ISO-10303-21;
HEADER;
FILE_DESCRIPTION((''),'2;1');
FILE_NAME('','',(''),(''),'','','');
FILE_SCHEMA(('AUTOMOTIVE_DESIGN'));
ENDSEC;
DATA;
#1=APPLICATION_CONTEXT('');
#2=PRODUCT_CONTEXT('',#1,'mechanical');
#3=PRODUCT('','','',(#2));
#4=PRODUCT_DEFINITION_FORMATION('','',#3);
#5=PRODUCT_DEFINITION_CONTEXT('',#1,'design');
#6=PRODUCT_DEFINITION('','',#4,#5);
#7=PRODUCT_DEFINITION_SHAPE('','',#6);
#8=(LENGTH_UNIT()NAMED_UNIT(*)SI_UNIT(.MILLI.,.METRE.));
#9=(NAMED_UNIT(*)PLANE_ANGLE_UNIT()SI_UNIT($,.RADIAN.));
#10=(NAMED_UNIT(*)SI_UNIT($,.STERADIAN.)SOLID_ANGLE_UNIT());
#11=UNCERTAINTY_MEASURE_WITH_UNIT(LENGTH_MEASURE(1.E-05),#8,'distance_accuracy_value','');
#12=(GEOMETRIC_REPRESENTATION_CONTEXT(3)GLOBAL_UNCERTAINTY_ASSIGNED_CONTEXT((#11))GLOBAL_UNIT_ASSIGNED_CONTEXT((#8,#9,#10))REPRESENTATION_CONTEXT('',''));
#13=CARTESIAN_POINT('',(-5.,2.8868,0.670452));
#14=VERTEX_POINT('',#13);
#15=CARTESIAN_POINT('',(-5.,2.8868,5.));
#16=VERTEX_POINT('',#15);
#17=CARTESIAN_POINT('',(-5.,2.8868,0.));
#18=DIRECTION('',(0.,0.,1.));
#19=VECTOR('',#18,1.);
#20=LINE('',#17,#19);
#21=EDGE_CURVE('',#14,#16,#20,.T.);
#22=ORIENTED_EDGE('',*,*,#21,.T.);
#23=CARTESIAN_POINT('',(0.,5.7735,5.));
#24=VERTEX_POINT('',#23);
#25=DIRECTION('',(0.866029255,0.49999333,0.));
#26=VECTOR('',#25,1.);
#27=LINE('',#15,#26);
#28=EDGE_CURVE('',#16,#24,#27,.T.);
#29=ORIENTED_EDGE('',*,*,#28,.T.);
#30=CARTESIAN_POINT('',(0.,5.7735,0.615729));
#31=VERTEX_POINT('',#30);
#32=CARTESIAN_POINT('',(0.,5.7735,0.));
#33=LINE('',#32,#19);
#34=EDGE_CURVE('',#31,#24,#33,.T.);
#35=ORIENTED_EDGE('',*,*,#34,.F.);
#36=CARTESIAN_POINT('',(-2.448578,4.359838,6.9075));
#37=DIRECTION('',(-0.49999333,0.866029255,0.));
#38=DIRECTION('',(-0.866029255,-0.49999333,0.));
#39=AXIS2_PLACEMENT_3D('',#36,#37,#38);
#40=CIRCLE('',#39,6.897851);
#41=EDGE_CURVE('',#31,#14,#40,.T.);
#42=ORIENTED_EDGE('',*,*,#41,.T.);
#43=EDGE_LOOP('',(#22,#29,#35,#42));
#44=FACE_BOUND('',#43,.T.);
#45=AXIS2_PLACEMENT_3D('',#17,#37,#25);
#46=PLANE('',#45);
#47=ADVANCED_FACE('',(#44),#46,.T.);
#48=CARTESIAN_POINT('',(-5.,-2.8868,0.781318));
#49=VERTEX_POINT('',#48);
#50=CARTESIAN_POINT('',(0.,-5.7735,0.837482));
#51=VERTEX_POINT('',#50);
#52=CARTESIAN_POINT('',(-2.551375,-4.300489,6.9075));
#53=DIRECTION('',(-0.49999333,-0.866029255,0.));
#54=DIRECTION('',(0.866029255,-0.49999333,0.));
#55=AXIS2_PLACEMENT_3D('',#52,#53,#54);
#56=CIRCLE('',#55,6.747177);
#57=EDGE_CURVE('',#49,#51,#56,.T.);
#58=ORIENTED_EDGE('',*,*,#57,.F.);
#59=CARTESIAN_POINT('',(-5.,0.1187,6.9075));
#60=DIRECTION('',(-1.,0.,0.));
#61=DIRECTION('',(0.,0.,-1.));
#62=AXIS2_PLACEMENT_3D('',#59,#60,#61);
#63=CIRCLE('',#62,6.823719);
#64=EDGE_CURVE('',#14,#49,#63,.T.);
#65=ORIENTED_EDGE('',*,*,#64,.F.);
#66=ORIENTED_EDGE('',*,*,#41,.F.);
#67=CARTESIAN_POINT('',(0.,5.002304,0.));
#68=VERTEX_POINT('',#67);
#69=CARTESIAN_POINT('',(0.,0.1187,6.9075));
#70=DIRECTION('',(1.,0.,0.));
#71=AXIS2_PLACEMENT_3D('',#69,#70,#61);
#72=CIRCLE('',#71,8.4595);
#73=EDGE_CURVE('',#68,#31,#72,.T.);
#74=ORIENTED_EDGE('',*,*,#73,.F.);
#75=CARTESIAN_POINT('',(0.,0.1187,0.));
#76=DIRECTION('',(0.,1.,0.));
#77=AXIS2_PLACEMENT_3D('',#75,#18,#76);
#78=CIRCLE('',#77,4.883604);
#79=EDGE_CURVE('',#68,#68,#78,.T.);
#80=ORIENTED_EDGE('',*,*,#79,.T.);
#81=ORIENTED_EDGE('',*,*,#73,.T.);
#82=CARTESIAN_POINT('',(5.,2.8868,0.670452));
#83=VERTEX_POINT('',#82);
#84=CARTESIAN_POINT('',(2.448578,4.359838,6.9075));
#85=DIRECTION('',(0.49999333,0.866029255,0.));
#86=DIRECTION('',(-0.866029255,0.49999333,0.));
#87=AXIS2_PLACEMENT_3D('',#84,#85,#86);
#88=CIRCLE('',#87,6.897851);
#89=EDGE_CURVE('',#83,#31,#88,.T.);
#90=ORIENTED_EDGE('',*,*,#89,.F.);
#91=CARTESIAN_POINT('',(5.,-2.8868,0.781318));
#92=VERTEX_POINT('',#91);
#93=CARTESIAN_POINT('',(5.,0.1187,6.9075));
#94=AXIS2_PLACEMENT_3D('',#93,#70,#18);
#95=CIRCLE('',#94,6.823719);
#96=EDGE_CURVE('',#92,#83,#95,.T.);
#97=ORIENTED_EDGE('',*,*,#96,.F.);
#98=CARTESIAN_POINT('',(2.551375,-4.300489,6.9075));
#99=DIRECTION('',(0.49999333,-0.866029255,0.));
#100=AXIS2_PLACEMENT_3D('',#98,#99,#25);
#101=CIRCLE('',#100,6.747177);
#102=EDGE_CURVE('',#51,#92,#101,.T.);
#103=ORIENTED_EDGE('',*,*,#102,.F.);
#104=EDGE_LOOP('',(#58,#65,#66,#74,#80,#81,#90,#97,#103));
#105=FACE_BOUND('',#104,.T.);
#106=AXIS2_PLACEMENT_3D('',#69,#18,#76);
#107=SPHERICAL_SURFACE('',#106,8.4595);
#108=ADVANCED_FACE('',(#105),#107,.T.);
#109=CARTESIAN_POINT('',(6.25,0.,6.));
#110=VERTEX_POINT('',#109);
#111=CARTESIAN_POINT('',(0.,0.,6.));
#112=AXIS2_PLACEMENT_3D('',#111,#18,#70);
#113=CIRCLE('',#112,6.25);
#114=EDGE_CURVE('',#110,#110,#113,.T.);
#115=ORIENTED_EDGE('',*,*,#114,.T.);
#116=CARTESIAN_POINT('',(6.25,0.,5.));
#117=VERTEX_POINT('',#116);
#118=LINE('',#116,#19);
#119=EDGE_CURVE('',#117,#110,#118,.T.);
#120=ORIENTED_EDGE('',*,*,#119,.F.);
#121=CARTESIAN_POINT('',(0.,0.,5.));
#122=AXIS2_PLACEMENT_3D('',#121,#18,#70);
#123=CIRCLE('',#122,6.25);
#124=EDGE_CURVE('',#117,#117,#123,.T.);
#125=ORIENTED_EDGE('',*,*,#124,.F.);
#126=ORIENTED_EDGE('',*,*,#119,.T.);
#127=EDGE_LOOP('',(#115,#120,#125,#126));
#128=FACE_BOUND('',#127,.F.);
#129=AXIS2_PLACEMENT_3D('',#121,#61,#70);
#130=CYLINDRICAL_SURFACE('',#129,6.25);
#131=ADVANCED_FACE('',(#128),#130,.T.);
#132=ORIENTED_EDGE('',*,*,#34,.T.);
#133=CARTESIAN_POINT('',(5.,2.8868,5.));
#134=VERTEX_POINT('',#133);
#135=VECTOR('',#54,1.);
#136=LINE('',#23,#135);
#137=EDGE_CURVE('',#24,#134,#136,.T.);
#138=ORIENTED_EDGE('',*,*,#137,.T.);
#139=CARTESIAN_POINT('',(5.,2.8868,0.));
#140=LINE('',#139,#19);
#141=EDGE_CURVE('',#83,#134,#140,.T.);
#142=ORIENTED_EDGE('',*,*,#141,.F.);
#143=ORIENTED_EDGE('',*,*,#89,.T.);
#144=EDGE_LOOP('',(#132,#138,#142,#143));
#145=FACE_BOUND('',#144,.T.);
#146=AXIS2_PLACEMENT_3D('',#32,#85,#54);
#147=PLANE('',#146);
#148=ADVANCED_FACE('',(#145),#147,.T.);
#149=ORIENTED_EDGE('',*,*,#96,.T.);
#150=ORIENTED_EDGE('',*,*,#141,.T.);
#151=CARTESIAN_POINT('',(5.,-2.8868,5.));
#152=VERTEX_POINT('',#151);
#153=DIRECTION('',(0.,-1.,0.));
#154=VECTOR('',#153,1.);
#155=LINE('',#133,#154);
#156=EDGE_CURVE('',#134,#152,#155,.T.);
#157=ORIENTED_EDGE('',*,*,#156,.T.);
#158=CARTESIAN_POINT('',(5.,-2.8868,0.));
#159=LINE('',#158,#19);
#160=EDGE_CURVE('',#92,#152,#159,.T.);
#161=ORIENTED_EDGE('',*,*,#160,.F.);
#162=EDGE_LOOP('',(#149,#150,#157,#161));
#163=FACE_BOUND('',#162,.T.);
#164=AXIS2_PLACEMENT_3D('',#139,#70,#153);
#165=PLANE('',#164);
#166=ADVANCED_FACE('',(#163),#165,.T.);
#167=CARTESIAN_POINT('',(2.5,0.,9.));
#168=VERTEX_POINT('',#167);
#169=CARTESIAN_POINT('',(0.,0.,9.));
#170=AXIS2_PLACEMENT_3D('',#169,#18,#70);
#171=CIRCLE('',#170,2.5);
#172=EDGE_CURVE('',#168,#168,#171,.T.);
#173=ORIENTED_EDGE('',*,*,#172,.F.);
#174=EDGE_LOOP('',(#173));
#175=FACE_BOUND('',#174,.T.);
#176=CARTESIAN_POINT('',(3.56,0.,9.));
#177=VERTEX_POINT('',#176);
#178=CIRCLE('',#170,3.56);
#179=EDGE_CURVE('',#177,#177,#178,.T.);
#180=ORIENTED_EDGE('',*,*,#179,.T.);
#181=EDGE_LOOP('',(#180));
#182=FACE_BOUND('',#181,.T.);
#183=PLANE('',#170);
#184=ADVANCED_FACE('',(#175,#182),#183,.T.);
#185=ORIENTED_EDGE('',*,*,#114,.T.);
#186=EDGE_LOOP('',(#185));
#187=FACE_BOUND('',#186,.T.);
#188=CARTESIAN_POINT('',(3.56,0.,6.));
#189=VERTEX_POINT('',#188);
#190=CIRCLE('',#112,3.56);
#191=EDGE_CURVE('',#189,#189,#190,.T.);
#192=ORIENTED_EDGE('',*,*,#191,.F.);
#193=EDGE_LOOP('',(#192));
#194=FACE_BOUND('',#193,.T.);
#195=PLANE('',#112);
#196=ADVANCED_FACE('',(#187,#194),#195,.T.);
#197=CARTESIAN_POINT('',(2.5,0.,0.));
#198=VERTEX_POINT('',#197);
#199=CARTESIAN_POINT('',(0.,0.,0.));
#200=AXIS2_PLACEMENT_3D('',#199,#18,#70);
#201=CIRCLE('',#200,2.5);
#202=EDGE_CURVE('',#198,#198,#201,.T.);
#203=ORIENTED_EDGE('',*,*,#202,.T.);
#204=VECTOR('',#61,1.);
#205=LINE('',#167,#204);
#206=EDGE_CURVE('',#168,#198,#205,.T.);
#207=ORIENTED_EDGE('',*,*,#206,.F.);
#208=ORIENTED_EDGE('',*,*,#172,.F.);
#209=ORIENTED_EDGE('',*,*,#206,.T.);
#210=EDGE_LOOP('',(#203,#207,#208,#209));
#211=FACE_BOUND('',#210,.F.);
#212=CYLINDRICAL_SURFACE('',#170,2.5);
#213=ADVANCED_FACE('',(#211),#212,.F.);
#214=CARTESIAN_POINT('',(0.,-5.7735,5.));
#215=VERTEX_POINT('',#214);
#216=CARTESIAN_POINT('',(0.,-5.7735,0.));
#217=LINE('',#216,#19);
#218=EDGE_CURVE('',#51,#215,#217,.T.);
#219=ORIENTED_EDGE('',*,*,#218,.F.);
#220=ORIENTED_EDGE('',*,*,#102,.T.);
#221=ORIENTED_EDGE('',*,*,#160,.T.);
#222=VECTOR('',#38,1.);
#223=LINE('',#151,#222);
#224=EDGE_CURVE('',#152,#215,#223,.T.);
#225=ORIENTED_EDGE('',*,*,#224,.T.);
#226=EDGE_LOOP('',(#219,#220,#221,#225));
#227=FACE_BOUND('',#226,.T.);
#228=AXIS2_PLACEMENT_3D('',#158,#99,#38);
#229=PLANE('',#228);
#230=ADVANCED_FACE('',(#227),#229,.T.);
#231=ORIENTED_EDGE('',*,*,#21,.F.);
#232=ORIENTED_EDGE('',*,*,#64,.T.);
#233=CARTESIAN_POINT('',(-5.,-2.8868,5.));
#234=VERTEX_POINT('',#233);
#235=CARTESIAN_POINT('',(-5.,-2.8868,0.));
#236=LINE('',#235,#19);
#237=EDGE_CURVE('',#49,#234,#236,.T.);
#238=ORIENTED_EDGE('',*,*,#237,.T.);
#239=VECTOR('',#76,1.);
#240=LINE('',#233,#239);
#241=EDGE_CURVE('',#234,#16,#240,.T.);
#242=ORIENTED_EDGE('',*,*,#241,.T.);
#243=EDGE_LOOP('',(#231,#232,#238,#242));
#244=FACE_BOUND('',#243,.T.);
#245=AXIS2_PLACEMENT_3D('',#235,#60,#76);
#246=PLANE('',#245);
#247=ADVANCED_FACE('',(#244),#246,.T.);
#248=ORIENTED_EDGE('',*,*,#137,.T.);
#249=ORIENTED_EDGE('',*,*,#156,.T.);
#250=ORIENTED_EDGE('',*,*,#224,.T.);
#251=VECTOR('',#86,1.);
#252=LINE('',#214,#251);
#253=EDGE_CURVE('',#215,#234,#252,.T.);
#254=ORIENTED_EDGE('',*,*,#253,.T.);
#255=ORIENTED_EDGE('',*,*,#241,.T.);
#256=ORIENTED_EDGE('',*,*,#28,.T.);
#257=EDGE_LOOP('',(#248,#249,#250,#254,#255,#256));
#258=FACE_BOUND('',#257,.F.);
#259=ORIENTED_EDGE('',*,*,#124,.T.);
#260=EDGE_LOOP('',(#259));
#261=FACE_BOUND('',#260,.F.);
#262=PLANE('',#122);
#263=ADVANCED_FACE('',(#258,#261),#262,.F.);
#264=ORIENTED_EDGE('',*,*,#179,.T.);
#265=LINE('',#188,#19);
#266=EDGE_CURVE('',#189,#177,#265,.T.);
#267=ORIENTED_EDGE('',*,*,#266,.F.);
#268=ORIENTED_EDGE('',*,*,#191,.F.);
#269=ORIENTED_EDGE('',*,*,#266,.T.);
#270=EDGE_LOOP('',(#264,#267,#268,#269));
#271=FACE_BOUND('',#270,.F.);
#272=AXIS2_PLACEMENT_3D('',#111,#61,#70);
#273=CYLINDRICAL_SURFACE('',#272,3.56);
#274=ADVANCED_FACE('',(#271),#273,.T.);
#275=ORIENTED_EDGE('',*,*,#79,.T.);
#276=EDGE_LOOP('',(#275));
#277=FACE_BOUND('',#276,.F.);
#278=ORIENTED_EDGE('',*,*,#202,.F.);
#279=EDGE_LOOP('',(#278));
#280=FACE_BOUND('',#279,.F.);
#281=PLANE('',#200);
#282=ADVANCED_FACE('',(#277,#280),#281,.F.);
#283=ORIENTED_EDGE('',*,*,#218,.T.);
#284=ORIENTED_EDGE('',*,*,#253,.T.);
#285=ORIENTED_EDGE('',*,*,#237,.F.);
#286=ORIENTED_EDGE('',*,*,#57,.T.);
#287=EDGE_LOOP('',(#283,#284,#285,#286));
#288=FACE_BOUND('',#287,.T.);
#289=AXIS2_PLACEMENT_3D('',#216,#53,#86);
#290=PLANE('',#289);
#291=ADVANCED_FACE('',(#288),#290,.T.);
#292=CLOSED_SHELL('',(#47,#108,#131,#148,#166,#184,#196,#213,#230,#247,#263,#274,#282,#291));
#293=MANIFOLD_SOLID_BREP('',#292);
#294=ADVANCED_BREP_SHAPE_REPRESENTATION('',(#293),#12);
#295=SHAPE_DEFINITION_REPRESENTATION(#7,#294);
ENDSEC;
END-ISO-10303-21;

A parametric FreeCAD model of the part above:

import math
import FreeCAD as App
import Part
import Sketcher
Q = App.Units.Quantity


def add_polygon(sketch, points):
    """Adds a closed chain of lines whose ends are joined by coincident constraints."""
    first, n = sketch.GeometryCount, len(points)
    for a, b in zip(points, points[1:] + points[:1]):
        sketch.addGeometry(Part.LineSegment(App.Vector(*a, 0), App.Vector(*b, 0)), False)
    for i in range(n):
        sketch.addConstraint(Sketcher.Constraint("Coincident", first + i, 2, first + (i + 1) % n, 1))

doc = App.newDocument("Part")
params = doc.addObject("Spreadsheet::Sheet", "Params")
for row, (alias, value) in enumerate([
    ("pad1_length", "5 mm"),
    ("sketch2_diameter", "12.5 mm"),
    ("pad2_length", "1 mm"),
    ("sketch3_diameter", "7.12 mm"),
    ("pad3_length", "3 mm"),
    ("sketch4_diameter", "5 mm"),
    ("groove_angle", "360 deg"),
], start=1):
    params.set(f"A{row}", alias)
    params.set(f"B{row}", "=" + value)
    params.setAlias(f"B{row}", alias)

body = doc.addObject("PartDesign::Body", "Body")

sketch1 = doc.addObject("Sketcher::SketchObject", "Sketch")
body.addObject(sketch1)
sketch1.AttachmentSupport = (doc.XY_Plane, [""])
sketch1.MapMode = "FlatFace"
add_polygon(sketch1, [(0, -6), (5, -3), (5, 3), (0, 6), (-5, 3), (-5, -3)])
sketch1.addConstraint([
    Sketcher.Constraint("Vertical", 1),
    Sketcher.Constraint("Vertical", 4),
    Sketcher.Constraint("Symmetric", 0, 2, 3, 2, -1, 1),
    Sketcher.Constraint("Symmetric", 2, 2, 5, 2, -1, 1),
    Sketcher.Constraint("PointOnObject", 2, 2, -2),
    Sketcher.Constraint("Parallel", 2, 5),
    Sketcher.Constraint("Horizontal", 1, 2, 3, 2),
    Sketcher.Constraint("DistanceX", 3, 2, 1, 2, 10.0),
    Sketcher.Constraint("Angle", 0, Q("29.9996 deg")),
    Sketcher.Constraint("DistanceY", 1, 1, 1, 2, 5.7736),
])
pad1 = doc.addObject("PartDesign::Pad", "Pad")
body.addObject(pad1)
pad1.Profile = sketch1
pad1.setExpression("Length", "Params.pad1_length")

sketch2 = doc.addObject("Sketcher::SketchObject", "Sketch001")
body.addObject(sketch2)
sketch2.AttachmentSupport = (doc.XY_Plane, [""])
sketch2.MapMode = "FlatFace"
sketch2.AttachmentOffset = App.Placement(App.Vector(0, 0, 5), App.Rotation())
sketch2.addGeometry(Part.Circle(App.Vector(0, 0, 0), App.Vector(0, 0, 1), 6), False)
sketch2.addConstraint([
    Sketcher.Constraint("Coincident", 0, 3, -1, 1),
    Sketcher.Constraint("Diameter", 0, 12.5),
])
sketch2.setExpression("Constraints[1]", "Params.sketch2_diameter")
pad2 = doc.addObject("PartDesign::Pad", "Pad001")
body.addObject(pad2)
pad2.Profile = sketch2
pad2.setExpression("Length", "Params.pad2_length")

sketch3 = doc.addObject("Sketcher::SketchObject", "Sketch002")
body.addObject(sketch3)
sketch3.AttachmentSupport = (doc.XY_Plane, [""])
sketch3.MapMode = "FlatFace"
sketch3.AttachmentOffset = App.Placement(App.Vector(0, 0, 6), App.Rotation())
sketch3.addGeometry(Part.Circle(App.Vector(0, 0, 0), App.Vector(0, 0, 1), 3.6), False)
sketch3.addConstraint([
    Sketcher.Constraint("Coincident", 0, 3, -1, 1),
    Sketcher.Constraint("Diameter", 0, 7.12),
])
sketch3.setExpression("Constraints[1]", "Params.sketch3_diameter")
pad3 = doc.addObject("PartDesign::Pad", "Pad002")
body.addObject(pad3)
pad3.Profile = sketch3
pad3.setExpression("Length", "Params.pad3_length")

sketch4 = doc.addObject("Sketcher::SketchObject", "Sketch003")
body.addObject(sketch4)
sketch4.AttachmentSupport = (doc.XY_Plane, [""])
sketch4.MapMode = "FlatFace"
sketch4.AttachmentOffset = App.Placement(App.Vector(0, 0, 9), App.Rotation())
sketch4.addGeometry(Part.Circle(App.Vector(0, 0, 0), App.Vector(0, 0, 1), 2.5), False)
sketch4.addConstraint([
    Sketcher.Constraint("Coincident", 0, 3, -1, 1),
    Sketcher.Constraint("Diameter", 0, 5.0),
])
sketch4.setExpression("Constraints[1]", "Params.sketch4_diameter")
pocket1 = doc.addObject("PartDesign::Pocket", "Pocket")
body.addObject(pocket1)
pocket1.Profile = sketch4
pocket1.Type = "UpToFirst"

sketch5 = doc.addObject("Sketcher::SketchObject", "Sketch004")
body.addObject(sketch5)
sketch5.AttachmentSupport = (doc.YZ_Plane, [""])
sketch5.MapMode = "FlatFace"
sketch5.addGeometry([
    Part.ArcOfCircle(Part.Circle(App.Vector(0.1, 6.9, 0), App.Vector(0, 0, 1), 8.5), math.radians(-90), math.radians(90)),
    Part.LineSegment(App.Vector(0.1, -1.6, 0), App.Vector(0.1, -2.8, 0)),
    Part.ArcOfCircle(Part.Circle(App.Vector(0.1, 6.9, 0), App.Vector(0, 0, 1), 9.7), math.radians(-90), math.radians(90)),
    Part.LineSegment(App.Vector(0.1, 16.7, 0), App.Vector(0.1, 15.4, 0)),
], False)
sketch5.addGeometry(Part.LineSegment(App.Vector(0.1, -2.8, 0), App.Vector(0.1, 16.7, 0)), True)
sketch5.addConstraint([
    Sketcher.Constraint("Coincident", 0, 1, 1, 1),
    Sketcher.Constraint("Coincident", 1, 2, 2, 1),
    Sketcher.Constraint("Coincident", 2, 2, 3, 1),
    Sketcher.Constraint("Coincident", 3, 2, 0, 2),
    Sketcher.Constraint("Vertical", 1),
    Sketcher.Constraint("Vertical", 3),
    Sketcher.Constraint("Vertical", 4),
    Sketcher.Constraint("Coincident", 2, 3, 0, 3),
    Sketcher.Constraint("Coincident", 4, 1, 1, 2),
    Sketcher.Constraint("Coincident", 4, 2, 2, 2),
    Sketcher.Constraint("Vertical", 2, 3, 0, 1),
    Sketcher.Constraint("Radius", 0, 8.4595),
    Sketcher.Constraint("Radius", 2, 9.7473),
    Sketcher.Constraint("DistanceY", 0, 1, -1, 1, 1.552),
    Sketcher.Constraint("DistanceX", -1, 1, 0, 3, 0.1187),
])
groove = doc.addObject("PartDesign::Groove", "Groove")
body.addObject(groove)
groove.Profile = sketch5
groove.ReferenceAxis = (sketch5, ["Axis0"])
groove.setExpression("Angle", "Params.groove_angle")

doc.recompute()
